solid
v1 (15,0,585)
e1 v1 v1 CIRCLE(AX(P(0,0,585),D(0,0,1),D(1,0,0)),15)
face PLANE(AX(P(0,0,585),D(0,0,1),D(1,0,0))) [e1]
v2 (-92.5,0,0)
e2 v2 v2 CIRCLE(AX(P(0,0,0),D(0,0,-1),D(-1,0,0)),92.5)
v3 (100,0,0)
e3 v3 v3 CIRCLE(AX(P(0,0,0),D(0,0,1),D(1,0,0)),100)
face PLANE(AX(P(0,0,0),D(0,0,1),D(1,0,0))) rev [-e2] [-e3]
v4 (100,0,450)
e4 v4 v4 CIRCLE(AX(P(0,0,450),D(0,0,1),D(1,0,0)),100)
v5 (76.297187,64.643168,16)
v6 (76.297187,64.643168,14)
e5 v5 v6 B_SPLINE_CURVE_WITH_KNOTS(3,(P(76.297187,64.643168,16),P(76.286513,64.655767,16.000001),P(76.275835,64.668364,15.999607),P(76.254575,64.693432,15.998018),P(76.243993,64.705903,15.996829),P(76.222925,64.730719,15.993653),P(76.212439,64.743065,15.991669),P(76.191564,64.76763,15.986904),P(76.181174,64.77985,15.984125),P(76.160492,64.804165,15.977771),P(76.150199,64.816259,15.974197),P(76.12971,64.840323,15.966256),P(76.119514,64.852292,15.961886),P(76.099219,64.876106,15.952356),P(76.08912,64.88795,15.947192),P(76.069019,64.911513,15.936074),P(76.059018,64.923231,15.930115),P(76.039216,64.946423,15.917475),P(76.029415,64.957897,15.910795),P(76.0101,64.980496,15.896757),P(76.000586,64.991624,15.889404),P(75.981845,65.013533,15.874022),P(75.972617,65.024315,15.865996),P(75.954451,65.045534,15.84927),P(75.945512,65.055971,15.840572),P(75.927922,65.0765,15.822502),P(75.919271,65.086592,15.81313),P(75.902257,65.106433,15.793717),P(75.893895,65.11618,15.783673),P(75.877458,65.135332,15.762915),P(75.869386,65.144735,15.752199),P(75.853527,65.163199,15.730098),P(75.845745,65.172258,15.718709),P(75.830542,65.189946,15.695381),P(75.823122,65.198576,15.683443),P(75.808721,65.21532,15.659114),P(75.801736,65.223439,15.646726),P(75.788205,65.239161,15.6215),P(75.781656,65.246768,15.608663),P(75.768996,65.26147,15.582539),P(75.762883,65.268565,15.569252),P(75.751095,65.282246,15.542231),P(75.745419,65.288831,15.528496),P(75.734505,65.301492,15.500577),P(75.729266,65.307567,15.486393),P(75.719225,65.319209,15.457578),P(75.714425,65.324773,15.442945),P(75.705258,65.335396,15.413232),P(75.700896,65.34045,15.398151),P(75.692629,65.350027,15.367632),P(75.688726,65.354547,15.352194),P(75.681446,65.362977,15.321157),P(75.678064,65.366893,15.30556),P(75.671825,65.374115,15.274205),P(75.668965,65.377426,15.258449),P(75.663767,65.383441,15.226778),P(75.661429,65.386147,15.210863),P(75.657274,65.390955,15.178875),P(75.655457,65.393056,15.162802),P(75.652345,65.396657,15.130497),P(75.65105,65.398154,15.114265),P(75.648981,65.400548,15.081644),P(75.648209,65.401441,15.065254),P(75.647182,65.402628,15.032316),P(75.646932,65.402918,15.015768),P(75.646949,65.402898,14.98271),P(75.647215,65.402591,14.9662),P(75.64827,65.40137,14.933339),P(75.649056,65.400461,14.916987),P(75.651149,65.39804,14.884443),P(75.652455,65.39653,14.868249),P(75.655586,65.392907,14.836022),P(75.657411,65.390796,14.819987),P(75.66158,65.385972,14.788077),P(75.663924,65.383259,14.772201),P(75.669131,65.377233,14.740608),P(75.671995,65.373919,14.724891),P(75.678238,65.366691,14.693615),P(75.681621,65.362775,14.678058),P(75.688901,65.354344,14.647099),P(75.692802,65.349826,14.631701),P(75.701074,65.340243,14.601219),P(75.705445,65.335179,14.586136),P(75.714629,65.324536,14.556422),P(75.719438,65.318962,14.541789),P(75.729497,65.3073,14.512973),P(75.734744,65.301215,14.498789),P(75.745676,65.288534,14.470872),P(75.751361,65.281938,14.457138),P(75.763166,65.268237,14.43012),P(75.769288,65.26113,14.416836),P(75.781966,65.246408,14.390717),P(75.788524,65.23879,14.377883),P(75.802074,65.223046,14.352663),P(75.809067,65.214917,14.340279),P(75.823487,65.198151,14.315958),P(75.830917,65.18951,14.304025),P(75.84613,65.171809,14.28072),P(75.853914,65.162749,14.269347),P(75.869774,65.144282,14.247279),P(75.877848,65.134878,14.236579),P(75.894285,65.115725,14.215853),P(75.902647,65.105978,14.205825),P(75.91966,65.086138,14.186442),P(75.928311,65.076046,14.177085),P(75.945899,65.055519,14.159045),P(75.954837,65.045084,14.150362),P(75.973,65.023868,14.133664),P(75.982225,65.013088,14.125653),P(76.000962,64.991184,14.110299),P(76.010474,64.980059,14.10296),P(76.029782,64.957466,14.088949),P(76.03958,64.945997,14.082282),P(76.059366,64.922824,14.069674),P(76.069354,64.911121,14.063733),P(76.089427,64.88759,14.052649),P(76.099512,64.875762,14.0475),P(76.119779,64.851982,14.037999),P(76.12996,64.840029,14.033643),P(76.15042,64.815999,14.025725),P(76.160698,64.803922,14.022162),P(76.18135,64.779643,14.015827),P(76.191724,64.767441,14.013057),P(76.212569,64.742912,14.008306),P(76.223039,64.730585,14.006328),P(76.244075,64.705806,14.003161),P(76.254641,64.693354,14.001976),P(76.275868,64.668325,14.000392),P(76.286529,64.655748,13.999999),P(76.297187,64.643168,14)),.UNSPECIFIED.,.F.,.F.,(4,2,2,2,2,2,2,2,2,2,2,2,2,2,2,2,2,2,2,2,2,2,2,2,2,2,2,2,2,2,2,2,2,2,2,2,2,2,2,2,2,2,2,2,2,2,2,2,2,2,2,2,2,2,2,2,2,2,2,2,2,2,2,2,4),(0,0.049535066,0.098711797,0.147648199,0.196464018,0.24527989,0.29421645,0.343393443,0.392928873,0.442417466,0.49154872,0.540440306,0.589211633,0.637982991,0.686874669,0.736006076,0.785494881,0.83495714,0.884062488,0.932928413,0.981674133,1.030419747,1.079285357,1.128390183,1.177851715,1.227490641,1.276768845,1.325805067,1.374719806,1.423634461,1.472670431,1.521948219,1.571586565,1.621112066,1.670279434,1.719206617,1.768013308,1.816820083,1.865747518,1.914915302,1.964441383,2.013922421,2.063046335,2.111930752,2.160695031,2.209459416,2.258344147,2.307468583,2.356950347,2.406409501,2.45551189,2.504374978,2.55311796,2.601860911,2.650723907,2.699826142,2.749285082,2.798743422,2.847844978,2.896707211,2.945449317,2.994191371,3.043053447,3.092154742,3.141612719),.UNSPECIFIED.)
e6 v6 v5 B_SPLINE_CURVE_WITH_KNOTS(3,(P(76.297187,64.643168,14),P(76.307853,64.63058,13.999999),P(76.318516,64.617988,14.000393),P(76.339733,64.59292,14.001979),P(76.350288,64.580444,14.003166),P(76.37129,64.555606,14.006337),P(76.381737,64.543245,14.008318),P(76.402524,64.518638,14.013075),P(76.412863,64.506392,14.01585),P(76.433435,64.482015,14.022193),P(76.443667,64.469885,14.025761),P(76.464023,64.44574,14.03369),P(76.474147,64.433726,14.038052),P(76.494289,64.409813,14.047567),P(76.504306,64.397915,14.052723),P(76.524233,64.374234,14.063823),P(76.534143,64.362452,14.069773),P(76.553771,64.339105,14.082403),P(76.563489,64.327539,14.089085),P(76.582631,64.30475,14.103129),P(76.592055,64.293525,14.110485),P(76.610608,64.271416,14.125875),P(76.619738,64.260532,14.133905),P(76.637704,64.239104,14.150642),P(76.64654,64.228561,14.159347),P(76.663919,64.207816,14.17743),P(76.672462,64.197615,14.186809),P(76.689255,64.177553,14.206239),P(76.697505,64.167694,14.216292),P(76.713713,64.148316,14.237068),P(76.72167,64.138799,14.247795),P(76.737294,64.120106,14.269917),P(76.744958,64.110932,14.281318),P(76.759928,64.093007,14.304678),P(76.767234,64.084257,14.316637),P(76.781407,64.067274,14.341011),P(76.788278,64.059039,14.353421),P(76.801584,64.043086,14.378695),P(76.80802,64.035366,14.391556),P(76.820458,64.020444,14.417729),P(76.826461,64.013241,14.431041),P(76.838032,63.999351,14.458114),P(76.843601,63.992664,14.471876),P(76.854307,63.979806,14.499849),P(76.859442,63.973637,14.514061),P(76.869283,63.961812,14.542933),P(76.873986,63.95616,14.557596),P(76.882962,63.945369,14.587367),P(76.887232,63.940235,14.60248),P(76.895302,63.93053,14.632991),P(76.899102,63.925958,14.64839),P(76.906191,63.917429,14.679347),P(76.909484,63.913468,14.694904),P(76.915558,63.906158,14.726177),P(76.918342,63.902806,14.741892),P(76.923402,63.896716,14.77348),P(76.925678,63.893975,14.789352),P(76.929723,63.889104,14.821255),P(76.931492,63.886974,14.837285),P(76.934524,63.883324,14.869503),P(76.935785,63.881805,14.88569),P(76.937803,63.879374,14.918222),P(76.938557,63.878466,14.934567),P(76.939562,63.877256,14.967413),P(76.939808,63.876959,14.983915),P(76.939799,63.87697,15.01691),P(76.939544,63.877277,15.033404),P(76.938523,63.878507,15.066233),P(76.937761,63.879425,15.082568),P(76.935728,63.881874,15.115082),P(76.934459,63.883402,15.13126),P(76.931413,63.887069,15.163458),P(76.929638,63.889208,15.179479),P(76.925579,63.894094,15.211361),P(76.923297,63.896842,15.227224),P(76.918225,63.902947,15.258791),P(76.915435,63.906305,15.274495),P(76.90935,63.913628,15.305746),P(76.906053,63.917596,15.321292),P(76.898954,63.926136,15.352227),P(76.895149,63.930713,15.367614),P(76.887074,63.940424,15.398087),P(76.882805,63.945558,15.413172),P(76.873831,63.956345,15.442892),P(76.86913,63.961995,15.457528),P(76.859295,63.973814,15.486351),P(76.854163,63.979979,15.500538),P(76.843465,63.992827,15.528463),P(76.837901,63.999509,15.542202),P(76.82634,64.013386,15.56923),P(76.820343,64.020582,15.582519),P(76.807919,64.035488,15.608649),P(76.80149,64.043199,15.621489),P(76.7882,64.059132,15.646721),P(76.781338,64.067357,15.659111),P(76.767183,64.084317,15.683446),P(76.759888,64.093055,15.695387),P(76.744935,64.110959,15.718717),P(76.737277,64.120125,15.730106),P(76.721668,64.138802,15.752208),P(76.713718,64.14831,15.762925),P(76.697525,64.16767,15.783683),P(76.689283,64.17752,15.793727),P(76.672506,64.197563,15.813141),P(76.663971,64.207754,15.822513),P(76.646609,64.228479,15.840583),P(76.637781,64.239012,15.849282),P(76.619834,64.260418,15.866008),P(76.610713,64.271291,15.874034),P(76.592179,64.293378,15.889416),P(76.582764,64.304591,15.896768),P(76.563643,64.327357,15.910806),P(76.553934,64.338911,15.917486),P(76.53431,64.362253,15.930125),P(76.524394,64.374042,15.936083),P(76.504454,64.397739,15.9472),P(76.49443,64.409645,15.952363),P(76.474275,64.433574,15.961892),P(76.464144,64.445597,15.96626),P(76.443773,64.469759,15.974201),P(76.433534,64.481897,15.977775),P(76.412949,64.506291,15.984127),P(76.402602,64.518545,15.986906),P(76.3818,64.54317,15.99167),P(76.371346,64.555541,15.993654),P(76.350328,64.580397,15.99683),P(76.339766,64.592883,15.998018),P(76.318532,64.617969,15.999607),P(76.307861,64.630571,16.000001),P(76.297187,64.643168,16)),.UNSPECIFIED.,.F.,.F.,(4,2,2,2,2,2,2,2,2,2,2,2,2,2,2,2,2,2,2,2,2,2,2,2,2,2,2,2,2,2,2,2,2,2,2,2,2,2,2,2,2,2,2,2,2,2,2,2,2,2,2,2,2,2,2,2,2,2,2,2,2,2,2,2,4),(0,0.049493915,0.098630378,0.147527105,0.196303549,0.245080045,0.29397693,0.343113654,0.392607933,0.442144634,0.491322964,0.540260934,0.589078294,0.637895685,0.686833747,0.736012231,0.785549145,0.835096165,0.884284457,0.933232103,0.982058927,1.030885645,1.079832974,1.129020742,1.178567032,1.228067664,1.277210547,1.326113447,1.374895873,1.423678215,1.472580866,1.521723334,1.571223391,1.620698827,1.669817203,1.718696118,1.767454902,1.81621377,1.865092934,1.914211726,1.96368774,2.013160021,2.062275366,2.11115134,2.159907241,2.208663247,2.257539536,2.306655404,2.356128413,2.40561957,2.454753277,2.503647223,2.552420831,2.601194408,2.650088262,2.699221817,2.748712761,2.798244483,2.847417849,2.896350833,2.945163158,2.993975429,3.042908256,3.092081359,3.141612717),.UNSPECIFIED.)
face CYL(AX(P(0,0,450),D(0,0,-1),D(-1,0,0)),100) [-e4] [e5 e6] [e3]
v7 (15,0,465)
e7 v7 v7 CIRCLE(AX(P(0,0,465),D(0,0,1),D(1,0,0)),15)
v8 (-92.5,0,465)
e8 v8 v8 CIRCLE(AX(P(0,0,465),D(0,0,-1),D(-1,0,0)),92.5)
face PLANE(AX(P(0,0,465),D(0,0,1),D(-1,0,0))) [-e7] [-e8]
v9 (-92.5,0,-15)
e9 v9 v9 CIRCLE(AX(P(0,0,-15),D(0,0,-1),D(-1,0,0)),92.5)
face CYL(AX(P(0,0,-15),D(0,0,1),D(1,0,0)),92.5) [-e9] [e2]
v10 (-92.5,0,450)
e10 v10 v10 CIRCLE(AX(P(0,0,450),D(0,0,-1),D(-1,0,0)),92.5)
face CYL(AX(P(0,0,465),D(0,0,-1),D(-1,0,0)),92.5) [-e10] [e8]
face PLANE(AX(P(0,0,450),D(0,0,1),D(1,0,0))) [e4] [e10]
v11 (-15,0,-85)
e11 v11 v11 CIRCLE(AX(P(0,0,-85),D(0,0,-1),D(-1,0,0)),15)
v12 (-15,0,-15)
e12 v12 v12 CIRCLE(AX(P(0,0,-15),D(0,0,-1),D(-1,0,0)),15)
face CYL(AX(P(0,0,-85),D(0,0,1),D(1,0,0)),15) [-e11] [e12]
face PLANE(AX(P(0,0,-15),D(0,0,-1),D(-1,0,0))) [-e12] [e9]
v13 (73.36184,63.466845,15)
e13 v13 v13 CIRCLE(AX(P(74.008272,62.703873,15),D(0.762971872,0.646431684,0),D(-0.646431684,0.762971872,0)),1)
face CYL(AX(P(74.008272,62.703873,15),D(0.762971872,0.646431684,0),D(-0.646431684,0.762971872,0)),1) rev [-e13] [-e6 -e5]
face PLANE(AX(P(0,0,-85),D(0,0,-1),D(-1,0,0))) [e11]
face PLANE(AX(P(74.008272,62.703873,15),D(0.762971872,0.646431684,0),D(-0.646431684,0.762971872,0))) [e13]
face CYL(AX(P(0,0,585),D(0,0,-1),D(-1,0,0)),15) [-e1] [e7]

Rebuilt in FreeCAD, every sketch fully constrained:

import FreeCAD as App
import Part
import Sketcher
from FreeCAD import Vector

doc = App.newDocument("Part")
body = doc.addObject("PartDesign::Body", "Body")

# Sketch on XY plane
sketch1 = body.newObject("Sketcher::SketchObject", "Sketch")
sketch1.AttachmentSupport = (doc.getObject("XY_Plane"), [""])
sketch1.MapMode = "FlatFace"
sketch1.addGeometry(Part.Circle(Vector(0, 0, 0), Vector(0, 0, 1), 100), False)
sketch1.addConstraint([
    Sketcher.Constraint("Coincident", 0, 3, -1, 1),
    Sketcher.Constraint("Diameter", 0, 200.0),
])
pad1 = body.newObject("PartDesign::Pad", "Pad")
pad1.Profile = sketch1
pad1.Length = 450

# Sketch on XY plane
sketch2 = body.newObject("Sketcher::SketchObject", "Sketch001")
sketch2.AttachmentSupport = (doc.getObject("XY_Plane"), [""])
sketch2.MapMode = "FlatFace"
sketch2.addGeometry(Part.Circle(Vector(0, 0, 0), Vector(0, 0, 1), 92), False)
sketch2.addConstraint([
    Sketcher.Constraint("Coincident", 0, 3, -1, 1),
    Sketcher.Constraint("Diameter", 0, 185.0),
])
pad2 = body.newObject("PartDesign::Pad", "Pad001")
pad2.Profile = sketch2
pad2.Length = 15
pad2.Reversed = True

# Sketch on XY plane
sketch3 = body.newObject("Sketcher::SketchObject", "Sketch002")
sketch3.AttachmentSupport = (doc.getObject("XY_Plane"), [""])
sketch3.MapMode = "FlatFace"
sketch3.AttachmentOffset = App.Placement(Vector(0, 0, -15), App.Rotation())
sketch3.addGeometry(Part.Circle(Vector(0, 0, 0), Vector(0, 0, 1), 15), False)
sketch3.addConstraint([
    Sketcher.Constraint("Coincident", 0, 3, -1, 1),
    Sketcher.Constraint("Diameter", 0, 30.0),
])
pad3 = body.newObject("PartDesign::Pad", "Pad002")
pad3.Profile = sketch3
pad3.Length = 70
pad3.Reversed = True
doc.recompute()

datumplane = body.newObject("PartDesign::Plane", "DatumPlane")
datumplane.AttachmentSupport = (doc.getObject("XY_Plane"), [""])
datumplane.MapMode = "FlatFace"
datumplane.AttachmentOffset = App.Placement(Vector(0, 0, 225), App.Rotation())
mirrored = body.newObject("PartDesign::Mirrored", "Mirrored")
mirrored.Originals = [pad2]
mirrored.MirrorPlane = (datumplane, [""])
body.Tip = mirrored

# Sketch on XY plane
sketch4 = body.newObject("Sketcher::SketchObject", "Sketch003")
sketch4.AttachmentSupport = (doc.getObject("XY_Plane"), [""])
sketch4.MapMode = "FlatFace"
sketch4.AttachmentOffset = App.Placement(Vector(0, 0, 585), App.Rotation())
sketch4.addGeometry(Part.Circle(Vector(0, 0, 0), Vector(0, 0, 1), 15), False)
sketch4.addConstraint([
    Sketcher.Constraint("Coincident", 0, 3, -1, 1),
    Sketcher.Constraint("Diameter", 0, 30.0),
])
pad4 = body.newObject("PartDesign::Pad", "Pad003")
pad4.Profile = sketch4
pad4.Length = 120
pad4.Reversed = True

# Sketch on an angled plane
sketch5 = body.newObject("Sketcher::SketchObject", "Sketch004")
sketch5.Placement = App.Placement(Vector(76.297187, 64.643168, 0), App.Rotation(Vector(0, 0, -1), Vector(-0.646431684, 0.762971872, 0), Vector(0.762971872, 0.646431684, 0), "ZXY"))
sketch5.addGeometry(Part.Circle(Vector(-15, 0, 0), Vector(0, 0, 1), 1), False)
sketch5.addConstraint([
    Sketcher.Constraint("PointOnObject", 0, 3, -1),
    Sketcher.Constraint("Diameter", 0, 2.0),
    Sketcher.Constraint("DistanceX", 0, 3, -1, 1, 15.0),
])
pocket1 = body.newObject("PartDesign::Pocket", "Pocket")
pocket1.Profile = sketch5
pocket1.Length = 3

doc.recompute()
